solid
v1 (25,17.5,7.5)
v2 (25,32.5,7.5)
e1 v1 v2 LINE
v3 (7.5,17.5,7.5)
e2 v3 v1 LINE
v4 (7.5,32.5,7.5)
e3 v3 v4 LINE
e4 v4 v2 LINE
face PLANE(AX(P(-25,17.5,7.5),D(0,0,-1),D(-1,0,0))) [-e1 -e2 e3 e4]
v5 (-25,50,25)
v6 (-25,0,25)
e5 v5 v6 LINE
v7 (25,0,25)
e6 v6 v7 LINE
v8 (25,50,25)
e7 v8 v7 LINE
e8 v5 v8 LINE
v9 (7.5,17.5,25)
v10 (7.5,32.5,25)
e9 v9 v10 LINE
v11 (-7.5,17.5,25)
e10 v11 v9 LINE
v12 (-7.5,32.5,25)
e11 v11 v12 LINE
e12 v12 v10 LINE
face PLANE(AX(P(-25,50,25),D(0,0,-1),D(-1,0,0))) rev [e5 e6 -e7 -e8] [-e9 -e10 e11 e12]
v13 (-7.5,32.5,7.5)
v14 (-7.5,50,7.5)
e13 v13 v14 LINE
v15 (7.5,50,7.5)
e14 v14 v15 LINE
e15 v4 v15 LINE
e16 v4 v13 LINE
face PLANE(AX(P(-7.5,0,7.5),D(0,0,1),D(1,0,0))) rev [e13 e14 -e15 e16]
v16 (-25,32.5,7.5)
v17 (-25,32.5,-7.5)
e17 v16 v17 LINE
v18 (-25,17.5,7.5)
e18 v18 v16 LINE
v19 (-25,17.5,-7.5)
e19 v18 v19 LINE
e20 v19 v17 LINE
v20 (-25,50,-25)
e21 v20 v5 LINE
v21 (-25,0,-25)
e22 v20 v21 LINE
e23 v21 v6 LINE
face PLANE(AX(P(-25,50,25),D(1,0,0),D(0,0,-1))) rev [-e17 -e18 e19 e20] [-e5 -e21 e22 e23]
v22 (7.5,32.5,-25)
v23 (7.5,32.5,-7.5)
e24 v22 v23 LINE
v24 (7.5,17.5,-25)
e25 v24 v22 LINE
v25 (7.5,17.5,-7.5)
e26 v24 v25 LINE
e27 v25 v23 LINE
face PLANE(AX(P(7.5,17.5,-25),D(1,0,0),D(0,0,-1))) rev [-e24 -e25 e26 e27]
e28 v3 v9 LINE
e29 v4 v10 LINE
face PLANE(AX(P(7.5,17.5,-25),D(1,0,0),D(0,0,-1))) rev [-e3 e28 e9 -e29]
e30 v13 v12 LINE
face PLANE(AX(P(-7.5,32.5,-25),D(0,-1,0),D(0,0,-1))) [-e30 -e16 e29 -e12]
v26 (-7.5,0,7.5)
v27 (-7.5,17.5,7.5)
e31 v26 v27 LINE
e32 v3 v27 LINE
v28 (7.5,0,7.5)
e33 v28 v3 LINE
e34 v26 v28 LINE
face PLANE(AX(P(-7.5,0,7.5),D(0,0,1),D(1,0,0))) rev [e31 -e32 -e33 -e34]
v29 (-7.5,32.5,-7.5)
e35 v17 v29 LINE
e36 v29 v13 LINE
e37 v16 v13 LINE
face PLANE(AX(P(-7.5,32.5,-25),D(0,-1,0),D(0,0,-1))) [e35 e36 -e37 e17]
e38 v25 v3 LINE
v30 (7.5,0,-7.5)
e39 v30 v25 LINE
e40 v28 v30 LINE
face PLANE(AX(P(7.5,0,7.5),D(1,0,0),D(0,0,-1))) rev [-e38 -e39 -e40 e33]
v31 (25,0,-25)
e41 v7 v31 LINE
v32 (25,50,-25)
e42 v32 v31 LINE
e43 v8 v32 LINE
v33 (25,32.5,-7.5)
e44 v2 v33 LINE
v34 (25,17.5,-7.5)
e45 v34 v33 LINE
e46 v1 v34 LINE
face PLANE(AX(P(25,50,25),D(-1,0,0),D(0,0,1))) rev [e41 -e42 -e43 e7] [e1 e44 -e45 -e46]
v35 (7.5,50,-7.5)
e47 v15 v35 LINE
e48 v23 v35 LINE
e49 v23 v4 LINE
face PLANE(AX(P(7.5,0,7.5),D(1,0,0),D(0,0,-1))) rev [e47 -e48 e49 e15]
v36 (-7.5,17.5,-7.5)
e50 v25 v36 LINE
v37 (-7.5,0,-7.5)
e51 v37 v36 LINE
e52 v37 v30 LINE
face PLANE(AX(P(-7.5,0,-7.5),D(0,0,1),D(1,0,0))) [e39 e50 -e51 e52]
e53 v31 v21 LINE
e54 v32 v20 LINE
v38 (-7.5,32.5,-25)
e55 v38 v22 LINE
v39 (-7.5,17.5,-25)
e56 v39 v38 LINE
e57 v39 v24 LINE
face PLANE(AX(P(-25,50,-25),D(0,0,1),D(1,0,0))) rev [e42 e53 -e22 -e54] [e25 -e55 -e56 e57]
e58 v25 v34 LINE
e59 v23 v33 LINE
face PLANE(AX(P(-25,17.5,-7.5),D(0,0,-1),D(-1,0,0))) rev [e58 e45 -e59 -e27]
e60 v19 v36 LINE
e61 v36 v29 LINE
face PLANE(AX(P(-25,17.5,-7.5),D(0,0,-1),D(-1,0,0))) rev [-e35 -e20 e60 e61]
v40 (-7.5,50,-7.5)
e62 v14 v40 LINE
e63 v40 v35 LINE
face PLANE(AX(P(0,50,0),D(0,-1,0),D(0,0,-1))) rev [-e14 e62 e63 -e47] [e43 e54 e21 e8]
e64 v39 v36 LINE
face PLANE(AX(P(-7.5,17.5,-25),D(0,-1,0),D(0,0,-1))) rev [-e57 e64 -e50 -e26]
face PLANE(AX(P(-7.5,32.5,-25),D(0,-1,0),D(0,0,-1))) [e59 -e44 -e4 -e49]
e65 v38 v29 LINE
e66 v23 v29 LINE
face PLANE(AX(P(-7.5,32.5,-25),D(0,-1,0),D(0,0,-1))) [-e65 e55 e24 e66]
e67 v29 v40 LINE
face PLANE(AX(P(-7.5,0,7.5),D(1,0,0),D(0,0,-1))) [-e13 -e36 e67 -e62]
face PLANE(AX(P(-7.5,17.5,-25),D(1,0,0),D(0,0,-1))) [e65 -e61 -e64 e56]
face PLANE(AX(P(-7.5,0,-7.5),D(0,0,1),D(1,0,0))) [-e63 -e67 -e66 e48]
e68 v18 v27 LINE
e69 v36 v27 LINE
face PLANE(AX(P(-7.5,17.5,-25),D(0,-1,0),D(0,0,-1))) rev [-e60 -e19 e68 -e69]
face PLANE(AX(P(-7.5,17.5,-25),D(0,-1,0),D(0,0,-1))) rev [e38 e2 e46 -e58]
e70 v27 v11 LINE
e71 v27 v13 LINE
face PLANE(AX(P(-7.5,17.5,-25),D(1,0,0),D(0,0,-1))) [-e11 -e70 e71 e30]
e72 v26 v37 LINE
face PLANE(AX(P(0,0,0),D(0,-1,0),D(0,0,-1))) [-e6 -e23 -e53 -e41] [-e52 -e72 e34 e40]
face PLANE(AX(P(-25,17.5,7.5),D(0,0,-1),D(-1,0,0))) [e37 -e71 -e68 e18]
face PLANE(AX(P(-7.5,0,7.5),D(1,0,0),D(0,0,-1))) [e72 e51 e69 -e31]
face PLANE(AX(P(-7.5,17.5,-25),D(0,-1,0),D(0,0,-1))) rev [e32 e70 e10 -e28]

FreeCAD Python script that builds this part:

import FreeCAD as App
import Part
import Sketcher
from FreeCAD import Vector
Q = App.Units.Quantity

doc = App.newDocument("Part")
params = doc.addObject("Spreadsheet::Sheet", "Params")
for row, (alias, value) in enumerate([
    ("sketch1_width", "50 mm"),
    ("pad1_length", "50 mm"),
    ("sketch2_width", "15 mm"),
    ("sketch3_width", "15 mm"),
    ("sketch4_width", "15 mm"),
], start=1):
    params.set(f"A{row}", alias)
    params.set(f"B{row}", "=" + value)
    params.setAlias(f"B{row}", alias)

body = doc.addObject("PartDesign::Body", "Body")

# Sketch on XZ plane
sketch1 = doc.addObject("Sketcher::SketchObject", "Sketch")
body.addObject(sketch1)
sketch1.AttachmentSupport = (doc.XZ_Plane, [""])
sketch1.MapMode = "FlatFace"
sketch1.addGeometry([
    Part.LineSegment(Vector(-25, -25, 0), Vector(-25, 25, 0)),
    Part.LineSegment(Vector(-25, 25, 0), Vector(25, 25, 0)),
    Part.LineSegment(Vector(25, 25, 0), Vector(25, -25, 0)),
    Part.LineSegment(Vector(25, -25, 0), Vector(-25, -25, 0)),
], False)
sketch1.addConstraint([
    Sketcher.Constraint("Coincident", 0, 2, 1, 1),
    Sketcher.Constraint("Coincident", 1, 2, 2, 1),
    Sketcher.Constraint("Coincident", 2, 2, 3, 1),
    Sketcher.Constraint("Coincident", 3, 2, 0, 1),
    Sketcher.Constraint("Vertical", 0),
    Sketcher.Constraint("Horizontal", 1),
    Sketcher.Constraint("Vertical", 2),
    Sketcher.Constraint("Horizontal", 3),
    Sketcher.Constraint("Symmetric", 0, 2, 2, 2, -1, 1),
    Sketcher.Constraint("Equal", 3, 0),
    Sketcher.Constraint("DistanceX", 1, 1, 1, 2, Q("50 mm")),
])
sketch1.setExpression("Constraints[10]", "Params.sketch1_width")
pad1 = doc.addObject("PartDesign::Pad", "Pad")
body.addObject(pad1)
pad1.Profile = sketch1
pad1.setExpression("Length", "Params.pad1_length")
pad1.Reversed = True

# Sketch on XY plane
sketch2 = doc.addObject("Sketcher::SketchObject", "Sketch001")
body.addObject(sketch2)
sketch2.AttachmentSupport = (doc.XY_Plane, [""])
sketch2.MapMode = "FlatFace"
sketch2.AttachmentOffset = App.Placement(Vector(0, 0, 25), App.Rotation())
sketch2.addGeometry([
    Part.LineSegment(Vector(-8, 32, 0), Vector(-8, 18, 0)),
    Part.LineSegment(Vector(-8, 18, 0), Vector(8, 18, 0)),
    Part.LineSegment(Vector(8, 18, 0), Vector(8, 32, 0)),
    Part.LineSegment(Vector(8, 32, 0), Vector(-8, 32, 0)),
], False)
sketch2.addConstraint([
    Sketcher.Constraint("Coincident", 0, 2, 1, 1),
    Sketcher.Constraint("Coincident", 1, 2, 2, 1),
    Sketcher.Constraint("Coincident", 2, 2, 3, 1),
    Sketcher.Constraint("Coincident", 3, 2, 0, 1),
    Sketcher.Constraint("Vertical", 0),
    Sketcher.Constraint("Horizontal", 1),
    Sketcher.Constraint("Vertical", 2),
    Sketcher.Constraint("Horizontal", 3),
    Sketcher.Constraint("Equal", 3, 0),
    Sketcher.Constraint("DistanceX", 1, 1, 1, 2, Q("15 mm")),
    Sketcher.Constraint("DistanceX", 0, 2, -1, 1, Q("7.5 mm")),
    Sketcher.Constraint("DistanceY", -1, 1, 0, 2, Q("17.5 mm")),
])
sketch2.setExpression("Constraints[9]", "Params.sketch2_width")
pocket1 = doc.addObject("PartDesign::Pocket", "Pocket")
body.addObject(pocket1)
pocket1.Profile = sketch2
pocket1.Type = "ThroughAll"

# Sketch on YZ plane
sketch3 = doc.addObject("Sketcher::SketchObject", "Sketch002")
body.addObject(sketch3)
sketch3.AttachmentSupport = (doc.YZ_Plane, [""])
sketch3.MapMode = "FlatFace"
sketch3.AttachmentOffset = App.Placement(Vector(0, 0, 25), App.Rotation())
sketch3.addGeometry([
    Part.LineSegment(Vector(32, 8, 0), Vector(18, 8, 0)),
    Part.LineSegment(Vector(18, 8, 0), Vector(18, -8, 0)),
    Part.LineSegment(Vector(18, -8, 0), Vector(32, -8, 0)),
    Part.LineSegment(Vector(32, -8, 0), Vector(32, 8, 0)),
], False)
sketch3.addConstraint([
    Sketcher.Constraint("Coincident", 0, 2, 1, 1),
    Sketcher.Constraint("Coincident", 1, 2, 2, 1),
    Sketcher.Constraint("Coincident", 2, 2, 3, 1),
    Sketcher.Constraint("Coincident", 3, 2, 0, 1),
    Sketcher.Constraint("Horizontal", 0),
    Sketcher.Constraint("Vertical", 1),
    Sketcher.Constraint("Horizontal", 2),
    Sketcher.Constraint("Vertical", 3),
    Sketcher.Constraint("Equal", 2, 1),
    Sketcher.Constraint("DistanceX", 0, 2, 0, 1, Q("15 mm")),
    Sketcher.Constraint("DistanceX", -1, 1, 0, 2, Q("17.5 mm")),
    Sketcher.Constraint("DistanceY", -1, 1, 0, 2, Q("7.5 mm")),
])
sketch3.setExpression("Constraints[9]", "Params.sketch3_width")
pocket2 = doc.addObject("PartDesign::Pocket", "Pocket001")
body.addObject(pocket2)
pocket2.Profile = sketch3
pocket2.Type = "ThroughAll"

# Sketch on XZ plane
sketch4 = doc.addObject("Sketcher::SketchObject", "Sketch003")
body.addObject(sketch4)
sketch4.AttachmentSupport = (doc.XZ_Plane, [""])
sketch4.MapMode = "FlatFace"
sketch4.AttachmentOffset = App.Placement(Vector(0, 0, -50), App.Rotation())
sketch4.addGeometry([
    Part.LineSegment(Vector(-8, -8, 0), Vector(-8, 8, 0)),
    Part.LineSegment(Vector(-8, 8, 0), Vector(8, 8, 0)),
    Part.LineSegment(Vector(8, 8, 0), Vector(8, -8, 0)),
    Part.LineSegment(Vector(8, -8, 0), Vector(-8, -8, 0)),
], False)
sketch4.addConstraint([
    Sketcher.Constraint("Coincident", 0, 2, 1, 1),
    Sketcher.Constraint("Coincident", 1, 2, 2, 1),
    Sketcher.Constraint("Coincident", 2, 2, 3, 1),
    Sketcher.Constraint("Coincident", 3, 2, 0, 1),
    Sketcher.Constraint("Vertical", 0),
    Sketcher.Constraint("Horizontal", 1),
    Sketcher.Constraint("Vertical", 2),
    Sketcher.Constraint("Horizontal", 3),
    Sketcher.Constraint("Symmetric", 0, 2, 2, 2, -1, 1),
    Sketcher.Constraint("Equal", 3, 0),
    Sketcher.Constraint("DistanceX", 1, 1, 1, 2, Q("15 mm")),
])
sketch4.setExpression("Constraints[10]", "Params.sketch4_width")
pocket3 = doc.addObject("PartDesign::Pocket", "Pocket002")
body.addObject(pocket3)
pocket3.Profile = sketch4
pocket3.Type = "ThroughAll"
pocket3.Reversed = True

doc.recompute()
